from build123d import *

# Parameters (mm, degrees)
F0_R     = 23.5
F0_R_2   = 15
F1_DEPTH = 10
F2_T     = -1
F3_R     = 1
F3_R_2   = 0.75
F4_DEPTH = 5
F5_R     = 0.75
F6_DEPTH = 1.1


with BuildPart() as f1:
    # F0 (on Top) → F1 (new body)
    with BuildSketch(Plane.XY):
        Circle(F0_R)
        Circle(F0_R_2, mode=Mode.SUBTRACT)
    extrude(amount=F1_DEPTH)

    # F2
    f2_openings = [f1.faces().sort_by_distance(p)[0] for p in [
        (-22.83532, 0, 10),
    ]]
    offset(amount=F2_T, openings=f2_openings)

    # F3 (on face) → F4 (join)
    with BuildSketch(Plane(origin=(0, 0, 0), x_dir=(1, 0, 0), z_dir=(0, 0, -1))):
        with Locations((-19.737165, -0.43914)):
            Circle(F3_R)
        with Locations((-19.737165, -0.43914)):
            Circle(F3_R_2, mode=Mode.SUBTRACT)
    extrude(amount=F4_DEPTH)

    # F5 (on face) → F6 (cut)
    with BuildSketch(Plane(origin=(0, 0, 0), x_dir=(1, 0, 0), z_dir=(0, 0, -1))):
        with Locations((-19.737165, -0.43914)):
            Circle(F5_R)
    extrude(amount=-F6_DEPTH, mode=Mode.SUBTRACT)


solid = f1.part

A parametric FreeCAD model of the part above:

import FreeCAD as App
import Part
import Sketcher
from FreeCAD import Vector


def faces_at(feature, points):
    """Names of the faces that lie closest to the given points."""
    faces = feature.Shape.Faces
    near = lambda p: min(range(len(faces)), key=lambda i: faces[i].distToShape(Part.Vertex(*p))[0])
    return sorted({f"Face{near(p) + 1}" for p in points})

doc = App.newDocument("Part")
body = doc.addObject("PartDesign::Body", "Body")

# Sketch on XY plane
sketch1 = body.newObject("Sketcher::SketchObject", "Sketch")
sketch1.AttachmentSupport = (doc.getObject("XY_Plane"), [""])
sketch1.MapMode = "FlatFace"
sketch1.addGeometry(Part.Circle(Vector(0, 0, 0), Vector(0, 0, 1), 24), False)
sketch1.addGeometry(Part.Circle(Vector(0, 0, 0), Vector(0, 0, 1), 15), False)
sketch1.addConstraint(Sketcher.Constraint("Coincident", 0, 3, -1, 1))
sketch1.addConstraint(Sketcher.Constraint("Coincident", 1, 3, -1, 1))
sketch1.addConstraint(Sketcher.Constraint("Diameter", 0, 47.0))
sketch1.addConstraint(Sketcher.Constraint("Diameter", 1, 30.0))
pad1 = body.newObject("PartDesign::Pad", "Pad")
pad1.Profile = sketch1
pad1.Length = 10
doc.recompute()

thickness = body.newObject("PartDesign::Thickness", "Thickness")
thickness.Base = (pad1, faces_at(pad1, [(-18.8, 0, 10)]))
thickness.Value = 1
thickness.Reversed = True
thickness.Join = "Arc"

# Sketch on XY plane
sketch2 = body.newObject("Sketcher::SketchObject", "Sketch001")
sketch2.AttachmentSupport = (doc.getObject("XY_Plane"), [""])
sketch2.MapMode = "FlatFace"
sketch2.addGeometry(Part.Circle(Vector(-19.7, 0.4, 0), Vector(0, 0, 1), 1), False)
sketch2.addGeometry(Part.Circle(Vector(-19.7, 0.4, 0), Vector(0, 0, 1), 0.8), False)
sketch2.addConstraint(Sketcher.Constraint("Coincident", 1, 3, 0, 3))
sketch2.addConstraint(Sketcher.Constraint("Diameter", 0, 2.0))
sketch2.addConstraint(Sketcher.Constraint("Diameter", 1, 1.5))
sketch2.addConstraint(Sketcher.Constraint("DistanceY", -1, 1, 0, 3, 0.43914))
sketch2.addConstraint(Sketcher.Constraint("DistanceX", 0, 3, -1, 1, 19.737165))
pad2 = body.newObject("PartDesign::Pad", "Pad001")
pad2.Profile = sketch2
pad2.Length = 5
pad2.Reversed = True

# Sketch on XY plane
sketch3 = body.newObject("Sketcher::SketchObject", "Sketch002")
sketch3.AttachmentSupport = (doc.getObject("XY_Plane"), [""])
sketch3.MapMode = "FlatFace"
sketch3.addGeometry(Part.Circle(Vector(-19.7, 0.4, 0), Vector(0, 0, 1), 0.8), False)
sketch3.addConstraint(Sketcher.Constraint("Diameter", 0, 1.5))
sketch3.addConstraint(Sketcher.Constraint("DistanceY", -1, 1, 0, 3, 0.43914))
sketch3.addConstraint(Sketcher.Constraint("DistanceX", 0, 3, -1, 1, 19.737165))
pocket1 = body.newObject("PartDesign::Pocket", "Pocket")
pocket1.Profile = sketch3
pocket1.Length = 1.1
pocket1.Reversed = True

doc.recompute()
